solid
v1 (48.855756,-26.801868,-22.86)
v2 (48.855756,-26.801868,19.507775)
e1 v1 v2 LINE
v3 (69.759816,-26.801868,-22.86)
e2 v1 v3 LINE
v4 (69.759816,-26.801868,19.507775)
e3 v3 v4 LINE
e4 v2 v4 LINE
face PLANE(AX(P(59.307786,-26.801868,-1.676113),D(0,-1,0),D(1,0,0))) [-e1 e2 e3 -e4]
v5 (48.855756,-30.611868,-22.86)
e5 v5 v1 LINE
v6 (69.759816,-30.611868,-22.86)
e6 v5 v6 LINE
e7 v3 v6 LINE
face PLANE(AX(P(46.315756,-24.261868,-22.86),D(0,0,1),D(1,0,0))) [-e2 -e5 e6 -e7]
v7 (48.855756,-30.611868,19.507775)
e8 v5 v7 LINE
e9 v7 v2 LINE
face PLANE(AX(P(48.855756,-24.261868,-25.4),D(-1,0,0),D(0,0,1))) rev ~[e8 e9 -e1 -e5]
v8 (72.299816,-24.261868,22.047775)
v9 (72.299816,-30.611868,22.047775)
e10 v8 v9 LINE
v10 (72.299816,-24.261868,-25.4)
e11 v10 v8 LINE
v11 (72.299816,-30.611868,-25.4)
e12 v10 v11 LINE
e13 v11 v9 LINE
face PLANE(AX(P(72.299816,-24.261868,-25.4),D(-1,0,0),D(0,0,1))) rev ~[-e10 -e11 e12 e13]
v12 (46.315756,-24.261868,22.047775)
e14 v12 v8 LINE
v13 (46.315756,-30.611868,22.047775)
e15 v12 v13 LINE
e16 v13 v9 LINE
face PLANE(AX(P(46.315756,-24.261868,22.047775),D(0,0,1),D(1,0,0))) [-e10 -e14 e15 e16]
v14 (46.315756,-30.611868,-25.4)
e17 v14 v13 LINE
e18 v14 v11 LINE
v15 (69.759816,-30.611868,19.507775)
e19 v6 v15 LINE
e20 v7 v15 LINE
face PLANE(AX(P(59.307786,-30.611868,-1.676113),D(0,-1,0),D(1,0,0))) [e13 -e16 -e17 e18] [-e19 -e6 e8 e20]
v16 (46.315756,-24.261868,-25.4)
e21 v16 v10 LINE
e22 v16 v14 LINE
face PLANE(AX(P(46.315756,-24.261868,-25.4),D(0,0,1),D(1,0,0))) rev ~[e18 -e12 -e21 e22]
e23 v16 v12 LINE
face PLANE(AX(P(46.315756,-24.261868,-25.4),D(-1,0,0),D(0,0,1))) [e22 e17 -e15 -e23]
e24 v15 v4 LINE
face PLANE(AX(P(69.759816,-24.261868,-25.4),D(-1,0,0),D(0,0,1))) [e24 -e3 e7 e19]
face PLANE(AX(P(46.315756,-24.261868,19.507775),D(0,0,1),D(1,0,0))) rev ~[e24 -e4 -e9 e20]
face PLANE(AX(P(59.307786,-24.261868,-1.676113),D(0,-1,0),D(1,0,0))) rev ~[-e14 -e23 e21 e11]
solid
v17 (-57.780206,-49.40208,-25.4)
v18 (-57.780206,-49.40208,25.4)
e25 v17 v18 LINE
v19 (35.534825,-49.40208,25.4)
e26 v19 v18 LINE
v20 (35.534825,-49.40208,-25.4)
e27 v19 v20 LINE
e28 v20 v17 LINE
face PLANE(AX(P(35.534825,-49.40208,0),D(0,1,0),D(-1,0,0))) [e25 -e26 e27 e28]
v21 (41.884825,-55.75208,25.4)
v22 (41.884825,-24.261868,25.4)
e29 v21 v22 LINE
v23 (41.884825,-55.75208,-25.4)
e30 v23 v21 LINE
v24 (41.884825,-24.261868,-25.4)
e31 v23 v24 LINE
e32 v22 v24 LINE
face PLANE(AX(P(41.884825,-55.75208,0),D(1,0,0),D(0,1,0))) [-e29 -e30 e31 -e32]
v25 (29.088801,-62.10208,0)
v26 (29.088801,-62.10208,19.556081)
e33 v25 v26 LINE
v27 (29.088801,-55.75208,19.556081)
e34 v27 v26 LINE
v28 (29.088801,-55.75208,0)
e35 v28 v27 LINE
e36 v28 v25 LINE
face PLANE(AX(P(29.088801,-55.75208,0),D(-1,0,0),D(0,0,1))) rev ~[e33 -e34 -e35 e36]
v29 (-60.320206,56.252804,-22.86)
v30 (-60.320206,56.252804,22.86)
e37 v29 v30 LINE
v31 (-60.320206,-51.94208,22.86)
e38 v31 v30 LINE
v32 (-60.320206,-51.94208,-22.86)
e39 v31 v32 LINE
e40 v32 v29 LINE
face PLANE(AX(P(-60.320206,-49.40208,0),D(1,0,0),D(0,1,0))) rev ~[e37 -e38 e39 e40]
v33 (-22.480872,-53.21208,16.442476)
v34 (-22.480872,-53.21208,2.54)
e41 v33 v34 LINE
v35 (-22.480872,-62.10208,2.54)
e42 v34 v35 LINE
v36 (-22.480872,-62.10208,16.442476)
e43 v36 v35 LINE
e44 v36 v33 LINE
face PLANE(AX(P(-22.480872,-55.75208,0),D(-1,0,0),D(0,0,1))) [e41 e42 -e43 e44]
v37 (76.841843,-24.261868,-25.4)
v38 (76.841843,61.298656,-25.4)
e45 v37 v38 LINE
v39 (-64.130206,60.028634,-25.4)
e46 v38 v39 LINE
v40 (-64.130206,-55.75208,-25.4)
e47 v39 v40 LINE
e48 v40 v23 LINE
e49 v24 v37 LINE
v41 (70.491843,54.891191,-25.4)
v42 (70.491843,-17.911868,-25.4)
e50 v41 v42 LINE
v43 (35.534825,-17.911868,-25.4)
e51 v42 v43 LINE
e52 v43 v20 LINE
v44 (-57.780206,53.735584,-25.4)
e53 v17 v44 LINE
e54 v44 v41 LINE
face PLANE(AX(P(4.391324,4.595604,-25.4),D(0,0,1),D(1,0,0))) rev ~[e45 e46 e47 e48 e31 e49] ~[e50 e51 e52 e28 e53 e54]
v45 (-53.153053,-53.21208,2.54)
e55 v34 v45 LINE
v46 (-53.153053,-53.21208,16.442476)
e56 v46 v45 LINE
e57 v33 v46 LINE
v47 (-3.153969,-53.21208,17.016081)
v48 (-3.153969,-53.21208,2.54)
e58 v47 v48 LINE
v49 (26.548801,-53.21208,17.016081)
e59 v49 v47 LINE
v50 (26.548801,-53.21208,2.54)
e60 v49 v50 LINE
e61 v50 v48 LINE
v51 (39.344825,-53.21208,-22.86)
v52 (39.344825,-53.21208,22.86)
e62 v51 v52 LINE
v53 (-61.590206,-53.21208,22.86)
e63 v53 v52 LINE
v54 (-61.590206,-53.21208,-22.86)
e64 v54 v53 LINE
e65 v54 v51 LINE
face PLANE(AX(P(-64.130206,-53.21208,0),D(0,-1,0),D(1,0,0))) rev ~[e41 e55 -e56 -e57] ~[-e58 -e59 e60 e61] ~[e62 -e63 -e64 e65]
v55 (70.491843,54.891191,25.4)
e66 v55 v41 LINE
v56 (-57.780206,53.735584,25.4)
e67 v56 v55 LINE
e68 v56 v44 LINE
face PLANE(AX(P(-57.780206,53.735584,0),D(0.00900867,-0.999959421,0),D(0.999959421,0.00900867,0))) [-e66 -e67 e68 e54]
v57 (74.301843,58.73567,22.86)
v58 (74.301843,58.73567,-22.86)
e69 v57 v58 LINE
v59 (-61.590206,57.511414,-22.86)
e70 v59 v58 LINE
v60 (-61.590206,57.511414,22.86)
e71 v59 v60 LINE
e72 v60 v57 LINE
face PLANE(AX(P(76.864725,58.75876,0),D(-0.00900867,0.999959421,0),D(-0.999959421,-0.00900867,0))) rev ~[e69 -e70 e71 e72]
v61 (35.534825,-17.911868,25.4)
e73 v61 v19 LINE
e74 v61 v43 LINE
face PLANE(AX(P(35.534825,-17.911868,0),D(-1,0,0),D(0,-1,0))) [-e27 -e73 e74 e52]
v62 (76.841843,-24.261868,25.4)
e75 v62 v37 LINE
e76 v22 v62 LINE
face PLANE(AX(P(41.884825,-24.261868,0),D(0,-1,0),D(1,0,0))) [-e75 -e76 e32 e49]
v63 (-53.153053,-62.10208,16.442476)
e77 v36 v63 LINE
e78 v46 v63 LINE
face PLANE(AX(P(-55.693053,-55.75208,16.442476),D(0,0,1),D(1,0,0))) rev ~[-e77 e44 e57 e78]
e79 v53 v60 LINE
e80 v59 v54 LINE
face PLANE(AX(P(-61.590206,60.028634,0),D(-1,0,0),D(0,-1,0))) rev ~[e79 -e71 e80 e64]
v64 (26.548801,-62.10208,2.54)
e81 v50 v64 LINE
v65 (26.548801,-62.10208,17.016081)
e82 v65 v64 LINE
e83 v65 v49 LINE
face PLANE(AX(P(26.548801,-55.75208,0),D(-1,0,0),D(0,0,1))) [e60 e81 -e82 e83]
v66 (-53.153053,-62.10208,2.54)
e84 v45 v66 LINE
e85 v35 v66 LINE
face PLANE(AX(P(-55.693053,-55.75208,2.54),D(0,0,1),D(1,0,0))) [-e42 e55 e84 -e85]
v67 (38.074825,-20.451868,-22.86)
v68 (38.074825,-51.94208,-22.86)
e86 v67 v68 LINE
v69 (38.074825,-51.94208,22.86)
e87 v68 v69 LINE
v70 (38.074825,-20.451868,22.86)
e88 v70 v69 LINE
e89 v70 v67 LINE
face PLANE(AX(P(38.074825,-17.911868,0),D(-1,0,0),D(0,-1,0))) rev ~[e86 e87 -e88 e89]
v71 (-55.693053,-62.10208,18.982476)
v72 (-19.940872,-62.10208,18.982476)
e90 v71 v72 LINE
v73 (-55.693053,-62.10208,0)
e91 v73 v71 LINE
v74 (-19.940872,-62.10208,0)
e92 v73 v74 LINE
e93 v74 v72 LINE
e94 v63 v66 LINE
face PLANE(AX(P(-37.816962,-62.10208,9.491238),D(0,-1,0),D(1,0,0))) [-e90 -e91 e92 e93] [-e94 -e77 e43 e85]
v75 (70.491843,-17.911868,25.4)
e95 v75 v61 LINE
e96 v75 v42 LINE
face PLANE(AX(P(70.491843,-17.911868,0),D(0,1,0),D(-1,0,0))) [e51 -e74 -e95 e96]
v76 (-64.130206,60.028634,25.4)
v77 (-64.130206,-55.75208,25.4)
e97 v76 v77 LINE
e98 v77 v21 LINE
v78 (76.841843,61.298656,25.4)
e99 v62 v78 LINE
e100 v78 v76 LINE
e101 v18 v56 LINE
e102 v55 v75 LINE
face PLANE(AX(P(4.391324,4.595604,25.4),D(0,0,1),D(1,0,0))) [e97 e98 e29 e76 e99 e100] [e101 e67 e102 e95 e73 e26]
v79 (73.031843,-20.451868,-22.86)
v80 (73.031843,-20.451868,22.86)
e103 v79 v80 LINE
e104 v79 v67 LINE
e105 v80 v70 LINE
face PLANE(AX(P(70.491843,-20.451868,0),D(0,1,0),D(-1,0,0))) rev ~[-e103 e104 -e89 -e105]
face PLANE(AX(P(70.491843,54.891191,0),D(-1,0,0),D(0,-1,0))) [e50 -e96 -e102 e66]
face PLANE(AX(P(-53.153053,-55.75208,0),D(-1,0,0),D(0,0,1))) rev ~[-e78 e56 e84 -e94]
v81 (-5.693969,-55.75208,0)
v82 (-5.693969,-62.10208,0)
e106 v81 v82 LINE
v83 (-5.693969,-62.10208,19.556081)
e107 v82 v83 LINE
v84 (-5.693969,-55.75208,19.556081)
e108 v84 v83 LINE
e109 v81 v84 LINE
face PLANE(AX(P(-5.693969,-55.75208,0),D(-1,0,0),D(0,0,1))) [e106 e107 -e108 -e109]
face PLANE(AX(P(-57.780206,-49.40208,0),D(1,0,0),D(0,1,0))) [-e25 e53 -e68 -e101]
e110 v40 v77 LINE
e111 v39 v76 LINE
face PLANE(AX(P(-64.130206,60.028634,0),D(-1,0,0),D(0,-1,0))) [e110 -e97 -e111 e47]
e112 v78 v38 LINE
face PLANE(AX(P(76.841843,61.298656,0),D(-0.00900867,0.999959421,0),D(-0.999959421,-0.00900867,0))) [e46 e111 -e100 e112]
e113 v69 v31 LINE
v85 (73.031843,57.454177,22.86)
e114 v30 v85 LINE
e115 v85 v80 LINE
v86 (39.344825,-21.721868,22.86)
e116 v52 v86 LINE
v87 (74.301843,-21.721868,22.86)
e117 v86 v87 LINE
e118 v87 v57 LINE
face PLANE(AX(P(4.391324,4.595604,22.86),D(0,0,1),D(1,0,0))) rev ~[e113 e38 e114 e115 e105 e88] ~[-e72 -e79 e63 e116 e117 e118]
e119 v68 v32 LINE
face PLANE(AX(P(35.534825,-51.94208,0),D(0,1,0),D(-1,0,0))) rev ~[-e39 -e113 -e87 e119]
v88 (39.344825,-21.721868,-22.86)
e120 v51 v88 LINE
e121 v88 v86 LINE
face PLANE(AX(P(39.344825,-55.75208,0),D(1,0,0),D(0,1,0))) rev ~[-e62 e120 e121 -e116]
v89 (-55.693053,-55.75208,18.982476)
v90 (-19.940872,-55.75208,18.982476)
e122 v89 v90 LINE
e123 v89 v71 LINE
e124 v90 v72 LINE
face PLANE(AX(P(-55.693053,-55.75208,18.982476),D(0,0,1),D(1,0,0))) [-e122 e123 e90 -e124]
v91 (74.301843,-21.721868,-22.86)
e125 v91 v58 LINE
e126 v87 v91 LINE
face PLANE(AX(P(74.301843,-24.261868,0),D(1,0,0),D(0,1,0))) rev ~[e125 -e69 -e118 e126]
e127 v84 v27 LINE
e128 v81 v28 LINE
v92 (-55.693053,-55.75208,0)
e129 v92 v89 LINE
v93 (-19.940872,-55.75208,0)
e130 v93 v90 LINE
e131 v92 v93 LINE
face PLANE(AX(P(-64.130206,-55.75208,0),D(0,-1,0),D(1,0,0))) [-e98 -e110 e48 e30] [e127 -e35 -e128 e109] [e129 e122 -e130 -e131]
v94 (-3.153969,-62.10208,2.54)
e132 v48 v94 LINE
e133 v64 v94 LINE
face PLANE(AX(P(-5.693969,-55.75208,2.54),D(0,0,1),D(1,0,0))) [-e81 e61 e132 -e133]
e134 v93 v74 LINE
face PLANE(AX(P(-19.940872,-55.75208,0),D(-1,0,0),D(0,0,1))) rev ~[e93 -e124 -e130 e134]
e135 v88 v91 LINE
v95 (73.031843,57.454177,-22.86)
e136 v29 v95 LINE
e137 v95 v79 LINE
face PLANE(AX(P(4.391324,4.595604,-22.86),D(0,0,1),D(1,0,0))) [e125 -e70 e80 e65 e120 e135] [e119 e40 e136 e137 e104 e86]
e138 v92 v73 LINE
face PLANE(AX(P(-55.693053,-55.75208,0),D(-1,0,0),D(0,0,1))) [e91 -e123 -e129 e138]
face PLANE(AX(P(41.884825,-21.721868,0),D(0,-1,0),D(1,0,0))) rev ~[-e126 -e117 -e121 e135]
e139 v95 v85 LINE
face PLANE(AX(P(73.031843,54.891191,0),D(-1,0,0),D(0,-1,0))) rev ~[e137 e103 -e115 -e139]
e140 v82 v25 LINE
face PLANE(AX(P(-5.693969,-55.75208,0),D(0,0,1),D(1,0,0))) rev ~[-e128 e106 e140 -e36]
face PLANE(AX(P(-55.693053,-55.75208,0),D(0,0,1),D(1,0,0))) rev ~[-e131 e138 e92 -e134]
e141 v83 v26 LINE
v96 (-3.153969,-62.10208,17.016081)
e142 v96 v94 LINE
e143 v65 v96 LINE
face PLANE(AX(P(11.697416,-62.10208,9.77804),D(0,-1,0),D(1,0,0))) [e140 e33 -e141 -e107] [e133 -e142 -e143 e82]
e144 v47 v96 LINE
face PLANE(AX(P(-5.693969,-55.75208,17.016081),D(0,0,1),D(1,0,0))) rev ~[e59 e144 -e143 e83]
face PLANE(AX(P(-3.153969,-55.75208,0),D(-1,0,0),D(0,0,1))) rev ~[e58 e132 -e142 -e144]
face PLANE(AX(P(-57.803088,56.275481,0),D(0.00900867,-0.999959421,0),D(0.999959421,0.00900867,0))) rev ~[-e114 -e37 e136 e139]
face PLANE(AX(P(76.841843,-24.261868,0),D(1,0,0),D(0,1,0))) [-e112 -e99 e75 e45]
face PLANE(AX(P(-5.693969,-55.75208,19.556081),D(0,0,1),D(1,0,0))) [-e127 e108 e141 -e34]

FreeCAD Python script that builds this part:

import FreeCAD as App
import Part
import Sketcher

V = App.Vector
Q = App.Units.Quantity


def faces_at(feature, points):
    """Names of the faces that lie closest to the given points."""
    faces = feature.Shape.Faces
    near = lambda p: min(range(len(faces)), key=lambda i: faces[i].distToShape(Part.Vertex(*p))[0])
    return sorted({f"Face{near(p) + 1}" for p in points})


def add_polygon(sketch, points):
    """Adds a closed chain of lines whose ends are joined by coincident constraints."""
    first, n = sketch.GeometryCount, len(points)
    for a, b in zip(points, points[1:] + points[:1]):
        sketch.addGeometry(Part.LineSegment(App.Vector(*a, 0), App.Vector(*b, 0)), False)
    for i in range(n):
        sketch.addConstraint(Sketcher.Constraint("Coincident", first + i, 2, first + (i + 1) % n, 1))

doc = App.newDocument("Part")
body = doc.addObject("PartDesign::Body", "Body")

sketch1 = doc.addObject("Sketcher::SketchObject", "Sketch")
body.addObject(sketch1)
sketch1.AttachmentSupport = (doc.XY_Plane, [""])
sketch1.MapMode = "FlatFace"
add_polygon(sketch1, [(76.841843, 61.298656), (-64.130206, 60.028634), (-64.130206, -55.75208), (41.884825, -55.75208), (41.884825, -24.261868), (76.841843, -24.261868)])
add_polygon(sketch1, [(35.534825, -49.40208), (-57.780206, -49.40208), (-57.780206, 53.735584), (70.491843, 54.891191), (70.491843, -17.911868), (35.534825, -17.911868)])
sketch1.addConstraint(Sketcher.Constraint("Vertical", 1))
sketch1.addConstraint(Sketcher.Constraint("Horizontal", 2))
sketch1.addConstraint(Sketcher.Constraint("Vertical", 3))
sketch1.addConstraint(Sketcher.Constraint("Horizontal", 4))
sketch1.addConstraint(Sketcher.Constraint("Vertical", 5))
sketch1.addConstraint(Sketcher.Constraint("Horizontal", 6))
sketch1.addConstraint(Sketcher.Constraint("Vertical", 7))
sketch1.addConstraint(Sketcher.Constraint("Vertical", 9))
sketch1.addConstraint(Sketcher.Constraint("Horizontal", 10))
sketch1.addConstraint(Sketcher.Constraint("Vertical", 11))
sketch1.addConstraint(Sketcher.Constraint("DistanceX", 1, 2, 6, 2, Q("0.25 in")))
sketch1.addConstraint(Sketcher.Constraint("DistanceY", 1, 2, 6, 2, Q("0.25 in")))
sketch1.addConstraint(Sketcher.Constraint("DistanceX", 8, 2, 5, 2, Q("0.25 in")))
sketch1.addConstraint(Sketcher.Constraint("DistanceY", 4, 2, 9, 2, Q("0.25 in")))
sketch1.addConstraint(Sketcher.Constraint("DistanceX", 10, 2, 3, 2, Q("0.25 in")))
sketch1.addConstraint(Sketcher.Constraint("DistanceX", 2, 1, 2, 2, Q("106.015031 mm")))
sketch1.addConstraint(Sketcher.Constraint("DistanceY", 9, 2, 9, 1, Q("72.80306 mm")))
sketch1.addConstraint(Sketcher.Constraint("Distance", 0, Q("140.97777 mm")))
sketch1.addConstraint(Sketcher.Constraint("DistanceX", 4, 1, 4, 2, Q("34.957018 mm")))
sketch1.addConstraint(Sketcher.Constraint("DistanceY", 1, 2, 1, 1, Q("115.780715 mm")))
sketch1.addConstraint(Sketcher.Constraint("DistanceY", 3, 1, 3, 2, Q("31.490212 mm")))
sketch1.addConstraint(Sketcher.Constraint("DistanceY", 7, 1, 7, 2, Q("103.137664 mm")))
sketch1.addConstraint(Sketcher.Constraint("DistanceY", 1, 2, -1, 1, Q("55.75208 mm")))
sketch1.addConstraint(Sketcher.Constraint("DistanceX", 0, 2, -1, 1, Q("64.130206 mm")))
pad1 = doc.addObject("PartDesign::Pad", "Pad")
body.addObject(pad1)
pad1.Profile = sketch1
pad1.Length = Q("2 in")
pad1.Midplane = True

sketch2 = doc.addObject("Sketcher::SketchObject", "Sketch001")
body.addObject(sketch2)
sketch2.AttachmentSupport = (doc.XZ_Plane, [""])
sketch2.MapMode = "FlatFace"
sketch2.AttachmentOffset = App.Placement(V(0, 0, 55.75208), App.Rotation())
add_polygon(sketch2, [(-56, 19), (-56, 0), (-20, 0), (-20, 19)])
add_polygon(sketch2, [(-6, 20), (-6, 0), (29, 0), (29, 20)])
sketch2.addConstraint(Sketcher.Constraint("Vertical", 0))
sketch2.addConstraint(Sketcher.Constraint("Horizontal", 1))
sketch2.addConstraint(Sketcher.Constraint("Vertical", 2))
sketch2.addConstraint(Sketcher.Constraint("Horizontal", 3))
sketch2.addConstraint(Sketcher.Constraint("Vertical", 4))
sketch2.addConstraint(Sketcher.Constraint("Horizontal", 5))
sketch2.addConstraint(Sketcher.Constraint("Vertical", 6))
sketch2.addConstraint(Sketcher.Constraint("Horizontal", 7))
sketch2.addConstraint(Sketcher.Constraint("PointOnObject", 0, 2, -1))
sketch2.addConstraint(Sketcher.Constraint("PointOnObject", 4, 2, -1))
sketch2.addConstraint(Sketcher.Constraint("DistanceX", 1, 1, 1, 2, Q("35.752181 mm")))
sketch2.addConstraint(Sketcher.Constraint("DistanceX", 5, 1, 5, 2, Q("34.78277 mm")))
sketch2.addConstraint(Sketcher.Constraint("DistanceY", 4, 2, 4, 1, Q("19.556081 mm")))
sketch2.addConstraint(Sketcher.Constraint("DistanceX", -1, 1, 5, 2, Q("29.088801 mm")))
sketch2.addConstraint(Sketcher.Constraint("DistanceY", 0, 2, 0, 1, Q("18.982476 mm")))
sketch2.addConstraint(Sketcher.Constraint("DistanceX", 1, 2, -1, 1, Q("19.940872 mm")))
pad2 = doc.addObject("PartDesign::Pad", "Pad001")
body.addObject(pad2)
pad2.Profile = sketch2
pad2.Length = Q("0.25 in")
doc.recompute()

thickness = doc.addObject("PartDesign::Thickness", "Thickness")
body.addObject(thickness)
thickness.Base = (pad2, faces_at(pad2, [(-37.817, -62.102, 9.491), (11.697, -62.102, 9.778)]))
thickness.Value = Q("0.1 in")
thickness.Reversed = True
thickness.Join = "Intersection"
body2 = doc.addObject("PartDesign::Body", "Body001")

sketch3 = doc.addObject("Sketcher::SketchObject", "Sketch002")
body2.addObject(sketch3)
sketch3.AttachmentSupport = (doc.getObject("XZ_Plane001"), [""])
sketch3.MapMode = "FlatFace"
sketch3.AttachmentOffset = App.Placement(V(0, 0, 24.261868), App.Rotation())
add_polygon(sketch3, [(46, 22), (46, -25), (72, -25), (72, 22)])
sketch3.addConstraint(Sketcher.Constraint("Vertical", 0))
sketch3.addConstraint(Sketcher.Constraint("Horizontal", 1))
sketch3.addConstraint(Sketcher.Constraint("Vertical", 2))
sketch3.addConstraint(Sketcher.Constraint("Horizontal", 3))
sketch3.addConstraint(Sketcher.Constraint("DistanceY", 0, 2, -1, 1, Q("1 in")))
sketch3.addConstraint(Sketcher.Constraint("DistanceX", 1, 1, 1, 2, Q("25.98406 mm")))
sketch3.addConstraint(Sketcher.Constraint("DistanceY", 0, 2, 0, 1, Q("47.447775 mm")))
sketch3.addConstraint(Sketcher.Constraint("DistanceX", -1, 1, 0, 2, Q("46.315756 mm")))
pad3 = doc.addObject("PartDesign::Pad", "Pad002")
body2.addObject(pad3)
pad3.Profile = sketch3
pad3.Length = Q("0.25 in")
doc.recompute()

thickness2 = doc.addObject("PartDesign::Thickness", "Thickness001")
body2.addObject(thickness2)
thickness2.Base = (pad3, faces_at(pad3, [(59.308, -30.612, -1.676)]))
thickness2.Value = Q("0.1 in")
thickness2.Reversed = True
thickness2.Join = "Arc"

doc.recompute()
